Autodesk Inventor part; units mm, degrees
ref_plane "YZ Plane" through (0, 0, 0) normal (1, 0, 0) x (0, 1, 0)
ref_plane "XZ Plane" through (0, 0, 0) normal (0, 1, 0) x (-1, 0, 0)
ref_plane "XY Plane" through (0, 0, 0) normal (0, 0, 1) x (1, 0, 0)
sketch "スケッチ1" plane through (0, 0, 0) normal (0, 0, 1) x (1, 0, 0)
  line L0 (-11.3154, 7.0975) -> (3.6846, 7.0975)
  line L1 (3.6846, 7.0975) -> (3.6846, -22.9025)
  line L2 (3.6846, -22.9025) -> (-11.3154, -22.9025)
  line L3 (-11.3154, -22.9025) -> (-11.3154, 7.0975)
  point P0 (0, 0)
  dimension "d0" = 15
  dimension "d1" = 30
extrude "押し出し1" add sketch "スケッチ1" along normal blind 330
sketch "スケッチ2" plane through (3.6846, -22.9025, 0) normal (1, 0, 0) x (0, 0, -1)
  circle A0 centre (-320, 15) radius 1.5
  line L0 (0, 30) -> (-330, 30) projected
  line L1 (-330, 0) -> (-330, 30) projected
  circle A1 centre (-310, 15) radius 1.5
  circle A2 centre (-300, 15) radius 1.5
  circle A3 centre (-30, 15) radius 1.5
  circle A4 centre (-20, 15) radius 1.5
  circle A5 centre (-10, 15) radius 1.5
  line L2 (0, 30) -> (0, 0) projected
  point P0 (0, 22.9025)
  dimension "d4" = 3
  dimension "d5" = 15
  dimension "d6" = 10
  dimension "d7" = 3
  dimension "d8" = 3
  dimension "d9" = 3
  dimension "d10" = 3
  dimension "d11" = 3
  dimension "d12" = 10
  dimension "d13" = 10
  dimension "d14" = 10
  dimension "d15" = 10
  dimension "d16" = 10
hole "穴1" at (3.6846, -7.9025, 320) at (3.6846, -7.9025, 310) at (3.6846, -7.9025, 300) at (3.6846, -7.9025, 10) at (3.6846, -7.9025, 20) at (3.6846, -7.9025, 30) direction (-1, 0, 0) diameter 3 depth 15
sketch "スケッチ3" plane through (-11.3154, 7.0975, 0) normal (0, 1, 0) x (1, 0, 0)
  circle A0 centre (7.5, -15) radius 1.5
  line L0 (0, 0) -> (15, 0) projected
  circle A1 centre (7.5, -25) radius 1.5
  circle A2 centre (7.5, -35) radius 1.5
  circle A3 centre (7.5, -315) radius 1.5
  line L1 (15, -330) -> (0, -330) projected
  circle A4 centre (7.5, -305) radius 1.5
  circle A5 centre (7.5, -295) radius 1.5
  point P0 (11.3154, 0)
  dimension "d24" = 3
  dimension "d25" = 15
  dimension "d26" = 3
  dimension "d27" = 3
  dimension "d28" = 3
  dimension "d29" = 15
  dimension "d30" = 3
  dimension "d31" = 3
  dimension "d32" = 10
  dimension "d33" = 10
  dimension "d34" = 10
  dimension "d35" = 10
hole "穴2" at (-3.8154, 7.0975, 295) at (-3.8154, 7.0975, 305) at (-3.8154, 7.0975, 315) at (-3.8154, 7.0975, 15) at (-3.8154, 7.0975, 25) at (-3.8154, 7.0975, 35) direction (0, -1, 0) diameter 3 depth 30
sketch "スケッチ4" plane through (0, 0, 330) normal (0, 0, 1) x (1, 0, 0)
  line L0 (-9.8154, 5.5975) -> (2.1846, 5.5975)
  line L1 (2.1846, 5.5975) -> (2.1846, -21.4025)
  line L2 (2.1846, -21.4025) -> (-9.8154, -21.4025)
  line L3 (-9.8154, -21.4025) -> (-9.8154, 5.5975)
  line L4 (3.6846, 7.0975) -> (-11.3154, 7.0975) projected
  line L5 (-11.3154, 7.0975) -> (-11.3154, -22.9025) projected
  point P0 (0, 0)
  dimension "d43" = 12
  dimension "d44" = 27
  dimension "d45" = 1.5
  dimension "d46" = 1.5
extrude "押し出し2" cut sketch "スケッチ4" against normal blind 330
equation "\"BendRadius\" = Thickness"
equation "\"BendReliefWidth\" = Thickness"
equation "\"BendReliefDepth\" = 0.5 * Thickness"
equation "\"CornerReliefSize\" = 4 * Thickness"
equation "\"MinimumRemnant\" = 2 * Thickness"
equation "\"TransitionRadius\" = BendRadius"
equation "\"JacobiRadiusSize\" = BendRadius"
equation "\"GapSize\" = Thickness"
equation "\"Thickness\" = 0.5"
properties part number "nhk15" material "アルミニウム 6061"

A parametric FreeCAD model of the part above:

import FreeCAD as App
import Part
import Sketcher

V = App.Vector
Q = App.Units.Quantity


def add_polygon(sketch, points):
    """Adds a closed chain of lines whose ends are joined by coincident constraints."""
    first, n = sketch.GeometryCount, len(points)
    for a, b in zip(points, points[1:] + points[:1]):
        sketch.addGeometry(Part.LineSegment(App.Vector(*a, 0), App.Vector(*b, 0)), False)
    for i in range(n):
        sketch.addConstraint(Sketcher.Constraint("Coincident", first + i, 2, first + (i + 1) % n, 1))

doc = App.newDocument("Part")
body = doc.addObject("PartDesign::Body", "Body")

# Sketch on XY plane
sketch1 = body.newObject("Sketcher::SketchObject", "Sketch")
sketch1.AttachmentSupport = (doc.getObject("XY_Plane"), [""])
sketch1.MapMode = "FlatFace"
add_polygon(sketch1, [(4, 7), (-11, 7), (-11, -23), (4, -23)])  # lines 0-3
sketch1.addConstraint([
    Sketcher.Constraint("Horizontal", 0),
    Sketcher.Constraint("Vertical", 1),
    Sketcher.Constraint("Horizontal", 2),
    Sketcher.Constraint("Vertical", 3),
    Sketcher.Constraint("DistanceX", 0, 2, 0, 1, Q("15 mm")),
    Sketcher.Constraint("DistanceY", 1, 2, 1, 1, Q("30 mm")),
    Sketcher.Constraint("DistanceX", 0, 2, -1, 1, Q("11.3154 mm")),
    Sketcher.Constraint("DistanceY", -1, 1, 0, 2, Q("7.0975 mm")),
])
pad1 = body.newObject("PartDesign::Pad", "Pad")
pad1.Profile = sketch1
pad1.Length = 330

# Sketch on YZ plane
sketch2 = body.newObject("Sketcher::SketchObject", "Sketch001")
sketch2.AttachmentSupport = (doc.getObject("YZ_Plane"), [""])
sketch2.MapMode = "FlatFace"
sketch2.AttachmentOffset = App.Placement(V(0, 0, 3.6846), App.Rotation())
sketch2.addGeometry([
    Part.Circle(V(-7.9, 320, 0), V(0, 0, 1), 1.5),  # 0
    Part.Circle(V(-7.9, 310, 0), V(0, 0, 1), 1.5),  # 1
    Part.Circle(V(-7.9, 300, 0), V(0, 0, 1), 1.5),  # 2
    Part.Circle(V(-7.9, 10, 0), V(0, 0, 1), 1.5),  # 3
    Part.Circle(V(-7.9, 20, 0), V(0, 0, 1), 1.5),  # 4
    Part.Circle(V(-7.9, 30, 0), V(0, 0, 1), 1.5),  # 5
], False)
sketch2.addConstraint([
    Sketcher.Constraint("Equal", 0, 1),
    Sketcher.Constraint("Equal", 1, 2),
    Sketcher.Constraint("Equal", 2, 3),
    Sketcher.Constraint("Equal", 3, 4),
    Sketcher.Constraint("Equal", 4, 5),
    Sketcher.Constraint("Vertical", 0, 3, 1, 3),
    Sketcher.Constraint("Vertical", 1, 3, 2, 3),
    Sketcher.Constraint("Vertical", 2, 3, 3, 3),
    Sketcher.Constraint("Vertical", 3, 3, 4, 3),
    Sketcher.Constraint("Vertical", 4, 3, 5, 3),
    Sketcher.Constraint("Diameter", 0, Q("3 mm")),
    Sketcher.Constraint("DistanceY", -1, 1, 0, 3, Q("320 mm")),
    Sketcher.Constraint("DistanceY", -1, 1, 1, 3, Q("310 mm")),
    Sketcher.Constraint("DistanceY", -1, 1, 2, 3, Q("300 mm")),
    Sketcher.Constraint("DistanceY", -1, 1, 3, 3, Q("10 mm")),
    Sketcher.Constraint("DistanceY", -1, 1, 4, 3, Q("20 mm")),
    Sketcher.Constraint("DistanceY", -1, 1, 5, 3, Q("30 mm")),
    Sketcher.Constraint("DistanceX", 0, 3, -1, 1, Q("7.9025 mm")),
])
doc.recompute()
hole = body.newObject("PartDesign::Hole", "Hole")
hole.Profile = sketch2
hole.ThreadType = "None"
hole.Diameter = 3
hole.DepthType = "Dimension"
hole.Depth = 15
hole.DrillPoint = "Flat"

# Sketch on XZ plane
sketch3 = body.newObject("Sketcher::SketchObject", "Sketch002")
sketch3.AttachmentSupport = (doc.getObject("XZ_Plane"), [""])
sketch3.MapMode = "FlatFace"
sketch3.AttachmentOffset = App.Placement(V(0, 0, -7.0975), App.Rotation())
sketch3.addGeometry([
    Part.Circle(V(-3.8, 295, 0), V(0, 0, 1), 1.5),  # 0
    Part.Circle(V(-3.8, 305, 0), V(0, 0, 1), 1.5),  # 1
    Part.Circle(V(-3.8, 315, 0), V(0, 0, 1), 1.5),  # 2
    Part.Circle(V(-3.8, 15, 0), V(0, 0, 1), 1.5),  # 3
    Part.Circle(V(-3.8, 25, 0), V(0, 0, 1), 1.5),  # 4
    Part.Circle(V(-3.8, 35, 0), V(0, 0, 1), 1.5),  # 5
], False)
sketch3.addConstraint([
    Sketcher.Constraint("Equal", 0, 1),
    Sketcher.Constraint("Equal", 1, 2),
    Sketcher.Constraint("Equal", 2, 3),
    Sketcher.Constraint("Equal", 3, 4),
    Sketcher.Constraint("Equal", 4, 5),
    Sketcher.Constraint("Vertical", 0, 3, 1, 3),
    Sketcher.Constraint("Vertical", 1, 3, 2, 3),
    Sketcher.Constraint("Vertical", 2, 3, 3, 3),
    Sketcher.Constraint("Vertical", 3, 3, 4, 3),
    Sketcher.Constraint("Vertical", 4, 3, 5, 3),
    Sketcher.Constraint("Diameter", 0, Q("3 mm")),
    Sketcher.Constraint("DistanceY", -1, 1, 0, 3, Q("295 mm")),
    Sketcher.Constraint("DistanceY", -1, 1, 1, 3, Q("305 mm")),
    Sketcher.Constraint("DistanceY", -1, 1, 2, 3, Q("315 mm")),
    Sketcher.Constraint("DistanceY", -1, 1, 3, 3, Q("15 mm")),
    Sketcher.Constraint("DistanceY", -1, 1, 4, 3, Q("25 mm")),
    Sketcher.Constraint("DistanceY", -1, 1, 5, 3, Q("35 mm")),
    Sketcher.Constraint("DistanceX", 0, 3, -1, 1, Q("3.8154 mm")),
])
doc.recompute()
hole2 = body.newObject("PartDesign::Hole", "Hole001")
hole2.Profile = sketch3
hole2.ThreadType = "None"
hole2.Diameter = 3
hole2.DepthType = "Dimension"
hole2.Depth = 30
hole2.DrillPoint = "Flat"
hole2.Reversed = True

# Sketch on XY plane
sketch4 = body.newObject("Sketcher::SketchObject", "Sketch003")
sketch4.AttachmentSupport = (doc.getObject("XY_Plane"), [""])
sketch4.MapMode = "FlatFace"
sketch4.AttachmentOffset = App.Placement(V(0, 0, 330), App.Rotation())
add_polygon(sketch4, [(2, 6), (-10, 6), (-10, -21), (2, -21)])  # lines 0-3
sketch4.addConstraint([
    Sketcher.Constraint("Horizontal", 0),
    Sketcher.Constraint("Vertical", 1),
    Sketcher.Constraint("Horizontal", 2),
    Sketcher.Constraint("Vertical", 3),
    Sketcher.Constraint("DistanceX", 0, 2, 0, 1, Q("12 mm")),
    Sketcher.Constraint("DistanceY", 1, 2, 1, 1, Q("27 mm")),
    Sketcher.Constraint("DistanceX", 0, 2, -1, 1, Q("9.8154 mm")),
    Sketcher.Constraint("DistanceY", -1, 1, 0, 2, Q("5.5975 mm")),
])
pocket1 = body.newObject("PartDesign::Pocket", "Pocket")
pocket1.Profile = sketch4
pocket1.Length = 330

doc.recompute()
